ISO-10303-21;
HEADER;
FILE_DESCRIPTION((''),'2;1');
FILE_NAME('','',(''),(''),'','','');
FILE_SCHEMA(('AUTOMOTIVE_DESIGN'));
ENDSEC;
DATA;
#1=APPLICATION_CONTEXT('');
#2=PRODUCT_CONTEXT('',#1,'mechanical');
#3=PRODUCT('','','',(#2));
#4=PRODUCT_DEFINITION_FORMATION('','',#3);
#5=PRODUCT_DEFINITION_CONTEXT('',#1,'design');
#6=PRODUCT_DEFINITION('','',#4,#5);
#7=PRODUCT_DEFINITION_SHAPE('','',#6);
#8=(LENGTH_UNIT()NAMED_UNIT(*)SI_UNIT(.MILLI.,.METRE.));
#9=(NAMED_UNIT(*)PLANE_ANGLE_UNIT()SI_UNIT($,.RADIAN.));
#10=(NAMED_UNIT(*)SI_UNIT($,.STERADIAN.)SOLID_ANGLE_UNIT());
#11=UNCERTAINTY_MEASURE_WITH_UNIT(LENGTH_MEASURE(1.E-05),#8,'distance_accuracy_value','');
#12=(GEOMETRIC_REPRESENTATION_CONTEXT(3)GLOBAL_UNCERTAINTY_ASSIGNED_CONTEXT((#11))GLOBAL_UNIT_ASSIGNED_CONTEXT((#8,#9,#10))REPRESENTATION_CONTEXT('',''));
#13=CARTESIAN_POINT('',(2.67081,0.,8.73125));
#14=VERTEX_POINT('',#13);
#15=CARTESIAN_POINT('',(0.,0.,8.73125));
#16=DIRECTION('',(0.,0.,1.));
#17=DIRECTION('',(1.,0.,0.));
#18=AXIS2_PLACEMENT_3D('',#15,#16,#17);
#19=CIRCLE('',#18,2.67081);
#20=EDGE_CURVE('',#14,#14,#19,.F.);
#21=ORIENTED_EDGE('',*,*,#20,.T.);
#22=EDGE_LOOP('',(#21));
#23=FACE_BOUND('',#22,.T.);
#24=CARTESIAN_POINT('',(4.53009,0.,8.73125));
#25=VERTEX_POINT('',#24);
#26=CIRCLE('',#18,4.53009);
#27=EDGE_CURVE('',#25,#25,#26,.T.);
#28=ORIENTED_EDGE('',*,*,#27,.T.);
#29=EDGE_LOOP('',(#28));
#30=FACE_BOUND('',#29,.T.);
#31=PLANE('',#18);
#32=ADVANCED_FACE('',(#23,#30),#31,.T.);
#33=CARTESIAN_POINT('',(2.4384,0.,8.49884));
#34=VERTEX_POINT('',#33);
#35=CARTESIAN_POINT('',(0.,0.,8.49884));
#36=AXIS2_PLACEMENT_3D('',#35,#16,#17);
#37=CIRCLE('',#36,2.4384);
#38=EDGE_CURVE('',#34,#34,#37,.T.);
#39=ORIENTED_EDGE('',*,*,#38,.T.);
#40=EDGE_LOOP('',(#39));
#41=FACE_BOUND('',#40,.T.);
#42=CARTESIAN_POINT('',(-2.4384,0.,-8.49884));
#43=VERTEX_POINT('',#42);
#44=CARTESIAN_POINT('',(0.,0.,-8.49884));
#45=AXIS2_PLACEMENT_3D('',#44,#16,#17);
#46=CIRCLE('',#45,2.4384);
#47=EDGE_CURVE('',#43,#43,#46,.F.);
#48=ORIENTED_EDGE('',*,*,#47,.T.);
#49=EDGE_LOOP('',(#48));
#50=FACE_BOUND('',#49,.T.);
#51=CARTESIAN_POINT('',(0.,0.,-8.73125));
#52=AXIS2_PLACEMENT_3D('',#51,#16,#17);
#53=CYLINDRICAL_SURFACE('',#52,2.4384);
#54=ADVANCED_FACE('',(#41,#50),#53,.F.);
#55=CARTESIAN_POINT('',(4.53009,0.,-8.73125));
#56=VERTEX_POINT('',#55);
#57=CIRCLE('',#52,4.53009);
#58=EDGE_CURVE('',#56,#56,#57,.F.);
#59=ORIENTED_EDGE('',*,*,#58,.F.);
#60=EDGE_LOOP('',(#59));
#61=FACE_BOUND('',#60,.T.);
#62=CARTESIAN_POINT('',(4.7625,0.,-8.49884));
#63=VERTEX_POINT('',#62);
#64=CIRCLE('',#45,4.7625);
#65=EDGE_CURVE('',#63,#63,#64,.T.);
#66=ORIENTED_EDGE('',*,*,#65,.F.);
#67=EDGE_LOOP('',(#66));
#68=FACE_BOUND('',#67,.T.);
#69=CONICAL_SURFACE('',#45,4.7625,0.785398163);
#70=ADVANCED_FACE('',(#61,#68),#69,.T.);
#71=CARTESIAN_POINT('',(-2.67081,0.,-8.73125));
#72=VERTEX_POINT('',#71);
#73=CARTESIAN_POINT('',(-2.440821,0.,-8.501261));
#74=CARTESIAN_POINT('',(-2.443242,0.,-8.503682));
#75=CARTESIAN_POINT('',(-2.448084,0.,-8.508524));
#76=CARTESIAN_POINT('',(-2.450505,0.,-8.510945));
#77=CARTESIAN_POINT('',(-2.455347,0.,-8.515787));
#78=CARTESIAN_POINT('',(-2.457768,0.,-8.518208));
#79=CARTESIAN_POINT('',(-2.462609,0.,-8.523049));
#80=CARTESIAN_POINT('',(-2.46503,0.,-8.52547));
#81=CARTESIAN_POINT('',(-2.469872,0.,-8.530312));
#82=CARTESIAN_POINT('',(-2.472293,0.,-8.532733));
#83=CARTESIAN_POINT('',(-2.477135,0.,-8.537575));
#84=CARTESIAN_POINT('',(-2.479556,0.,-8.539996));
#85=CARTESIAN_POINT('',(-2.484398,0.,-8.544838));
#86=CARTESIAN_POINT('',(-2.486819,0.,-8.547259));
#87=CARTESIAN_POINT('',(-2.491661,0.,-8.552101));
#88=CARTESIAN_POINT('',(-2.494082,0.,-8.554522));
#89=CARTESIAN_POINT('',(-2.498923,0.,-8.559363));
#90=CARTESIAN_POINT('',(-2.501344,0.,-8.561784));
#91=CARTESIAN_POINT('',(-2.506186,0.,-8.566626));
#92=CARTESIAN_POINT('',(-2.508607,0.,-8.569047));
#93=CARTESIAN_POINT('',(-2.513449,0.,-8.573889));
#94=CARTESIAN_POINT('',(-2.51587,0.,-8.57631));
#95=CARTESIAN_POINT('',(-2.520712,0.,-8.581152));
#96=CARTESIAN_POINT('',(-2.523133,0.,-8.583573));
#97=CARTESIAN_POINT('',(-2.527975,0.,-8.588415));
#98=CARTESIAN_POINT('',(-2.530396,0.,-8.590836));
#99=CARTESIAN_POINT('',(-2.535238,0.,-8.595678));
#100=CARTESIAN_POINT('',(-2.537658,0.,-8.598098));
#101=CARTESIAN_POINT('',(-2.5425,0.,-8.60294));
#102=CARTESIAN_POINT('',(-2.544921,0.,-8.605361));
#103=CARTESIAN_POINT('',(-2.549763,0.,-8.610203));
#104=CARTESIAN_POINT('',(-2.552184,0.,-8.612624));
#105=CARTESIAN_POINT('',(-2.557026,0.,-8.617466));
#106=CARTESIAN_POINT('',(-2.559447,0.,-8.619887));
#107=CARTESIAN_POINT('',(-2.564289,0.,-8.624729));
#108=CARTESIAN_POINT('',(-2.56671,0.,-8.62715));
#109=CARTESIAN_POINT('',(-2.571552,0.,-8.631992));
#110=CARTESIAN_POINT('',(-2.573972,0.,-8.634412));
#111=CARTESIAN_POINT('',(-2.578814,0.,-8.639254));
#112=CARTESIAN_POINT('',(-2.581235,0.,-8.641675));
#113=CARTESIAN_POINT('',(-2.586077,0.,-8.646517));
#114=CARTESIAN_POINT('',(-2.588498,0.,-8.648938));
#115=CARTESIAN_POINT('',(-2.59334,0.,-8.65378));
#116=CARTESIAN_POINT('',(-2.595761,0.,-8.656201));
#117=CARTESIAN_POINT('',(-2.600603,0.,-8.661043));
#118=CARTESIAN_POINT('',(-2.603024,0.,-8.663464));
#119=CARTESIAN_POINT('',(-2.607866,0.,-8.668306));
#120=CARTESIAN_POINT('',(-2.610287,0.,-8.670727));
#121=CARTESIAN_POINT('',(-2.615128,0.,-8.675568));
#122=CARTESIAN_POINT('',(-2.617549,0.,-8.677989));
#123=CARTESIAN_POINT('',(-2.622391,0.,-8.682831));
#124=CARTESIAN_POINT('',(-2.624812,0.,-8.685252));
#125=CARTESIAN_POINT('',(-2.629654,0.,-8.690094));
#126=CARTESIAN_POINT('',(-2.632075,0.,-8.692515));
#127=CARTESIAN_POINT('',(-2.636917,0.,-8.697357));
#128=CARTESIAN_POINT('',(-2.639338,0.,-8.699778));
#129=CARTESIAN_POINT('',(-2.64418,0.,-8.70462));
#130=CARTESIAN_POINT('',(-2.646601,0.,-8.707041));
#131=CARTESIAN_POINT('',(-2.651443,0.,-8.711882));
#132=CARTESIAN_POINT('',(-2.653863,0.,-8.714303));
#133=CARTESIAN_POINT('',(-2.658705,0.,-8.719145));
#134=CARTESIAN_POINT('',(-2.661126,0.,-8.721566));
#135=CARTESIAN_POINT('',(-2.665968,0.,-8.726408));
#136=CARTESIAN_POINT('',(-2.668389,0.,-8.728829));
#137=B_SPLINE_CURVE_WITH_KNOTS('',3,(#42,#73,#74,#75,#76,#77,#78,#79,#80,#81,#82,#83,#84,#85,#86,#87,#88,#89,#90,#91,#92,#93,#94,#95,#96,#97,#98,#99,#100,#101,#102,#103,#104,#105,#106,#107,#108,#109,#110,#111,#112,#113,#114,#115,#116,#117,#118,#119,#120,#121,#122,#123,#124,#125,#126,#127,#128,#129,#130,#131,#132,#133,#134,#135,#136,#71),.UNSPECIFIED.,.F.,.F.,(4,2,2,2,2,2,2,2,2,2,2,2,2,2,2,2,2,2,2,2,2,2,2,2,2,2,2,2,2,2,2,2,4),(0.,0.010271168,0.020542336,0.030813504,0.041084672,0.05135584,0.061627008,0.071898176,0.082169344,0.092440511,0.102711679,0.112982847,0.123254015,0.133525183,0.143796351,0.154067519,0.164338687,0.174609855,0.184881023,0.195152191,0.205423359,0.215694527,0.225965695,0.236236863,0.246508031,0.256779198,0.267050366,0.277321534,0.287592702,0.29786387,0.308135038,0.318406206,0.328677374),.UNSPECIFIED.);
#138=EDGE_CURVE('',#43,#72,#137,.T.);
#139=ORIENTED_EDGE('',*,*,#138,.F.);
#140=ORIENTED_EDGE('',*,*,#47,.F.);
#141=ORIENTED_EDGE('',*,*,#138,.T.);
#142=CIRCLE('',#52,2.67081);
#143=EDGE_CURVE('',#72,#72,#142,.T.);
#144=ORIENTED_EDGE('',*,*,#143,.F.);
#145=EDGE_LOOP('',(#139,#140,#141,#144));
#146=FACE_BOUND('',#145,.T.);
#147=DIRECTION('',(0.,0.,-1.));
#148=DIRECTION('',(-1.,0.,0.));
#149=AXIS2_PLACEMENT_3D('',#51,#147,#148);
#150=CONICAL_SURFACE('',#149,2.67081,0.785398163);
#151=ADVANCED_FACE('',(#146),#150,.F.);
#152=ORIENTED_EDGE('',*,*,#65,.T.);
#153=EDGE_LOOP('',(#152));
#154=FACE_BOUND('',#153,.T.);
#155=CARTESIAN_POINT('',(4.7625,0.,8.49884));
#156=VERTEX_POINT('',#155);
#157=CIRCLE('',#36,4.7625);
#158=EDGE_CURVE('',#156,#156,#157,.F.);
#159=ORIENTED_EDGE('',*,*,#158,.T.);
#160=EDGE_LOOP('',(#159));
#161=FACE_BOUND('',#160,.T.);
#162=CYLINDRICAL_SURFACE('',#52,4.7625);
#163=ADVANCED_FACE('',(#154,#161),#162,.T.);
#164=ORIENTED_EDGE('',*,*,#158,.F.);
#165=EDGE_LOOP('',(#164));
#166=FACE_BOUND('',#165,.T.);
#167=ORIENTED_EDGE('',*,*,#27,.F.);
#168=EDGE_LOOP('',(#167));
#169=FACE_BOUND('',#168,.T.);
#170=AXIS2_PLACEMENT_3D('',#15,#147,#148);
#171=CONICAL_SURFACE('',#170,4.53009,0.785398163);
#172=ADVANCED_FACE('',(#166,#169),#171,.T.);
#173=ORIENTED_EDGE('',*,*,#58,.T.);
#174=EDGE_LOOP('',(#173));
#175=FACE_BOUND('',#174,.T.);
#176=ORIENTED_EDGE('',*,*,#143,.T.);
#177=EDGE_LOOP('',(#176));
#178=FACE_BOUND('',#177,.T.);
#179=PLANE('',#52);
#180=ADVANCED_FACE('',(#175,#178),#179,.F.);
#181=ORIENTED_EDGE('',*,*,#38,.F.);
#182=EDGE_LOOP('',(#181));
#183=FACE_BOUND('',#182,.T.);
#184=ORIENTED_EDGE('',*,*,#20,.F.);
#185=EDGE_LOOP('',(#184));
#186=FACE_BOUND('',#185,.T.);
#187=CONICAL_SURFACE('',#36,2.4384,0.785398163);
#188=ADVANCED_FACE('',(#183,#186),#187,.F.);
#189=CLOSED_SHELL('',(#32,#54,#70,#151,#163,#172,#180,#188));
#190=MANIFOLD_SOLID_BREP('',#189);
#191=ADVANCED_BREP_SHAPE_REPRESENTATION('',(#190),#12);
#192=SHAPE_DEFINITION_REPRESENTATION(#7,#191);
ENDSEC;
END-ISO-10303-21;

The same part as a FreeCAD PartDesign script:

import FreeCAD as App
import Part
import Sketcher
Q = App.Units.Quantity


def edges_at(feature, points):
    """Names of the edges that pass closest to the given points."""
    edges = feature.Shape.Edges
    near = lambda p: min(range(len(edges)), key=lambda i: edges[i].distToShape(Part.Vertex(*p))[0])
    return sorted({f"Edge{near(p) + 1}" for p in points})

doc = App.newDocument("Part")
body = doc.addObject("PartDesign::Body", "Body")

sketch1 = body.newObject("Sketcher::SketchObject", "Sketch")
sketch1.AttachmentSupport = (doc.getObject("XY_Plane"), [""])
sketch1.MapMode = "FlatFace"
sketch1.addGeometry([
    Part.Circle(App.Vector(0, 0, 0), App.Vector(0, 0, 1), 4.8),
    Part.Circle(App.Vector(0, 0, 0), App.Vector(0, 0, 1), 2.4),
], False)
sketch1.addConstraint([
    Sketcher.Constraint("Coincident", 0, 3, -1, 1),
    Sketcher.Constraint("Coincident", 1, 3, -1, 1),
    Sketcher.Constraint("Diameter", 0, Q("0.375 in")),
    Sketcher.Constraint("Diameter", 1, Q("0.192 in")),
])
pad1 = body.newObject("PartDesign::Pad", "Pad")
pad1.Profile = sketch1
pad1.Type = "TwoLengths"
pad1.Length = Q("0.34375 in")
pad1.Length2 = Q("0.34375 in")
doc.recompute()

chamfer = body.newObject("PartDesign::Chamfer", "Chamfer")
chamfer.Base = (pad1, edges_at(pad1, [
    (-4.763, 0, -8.731),
    (-2.438, 0, -8.731),
    (-4.763, 0, 8.731),
    (-2.438, 0, 8.731),
]))
chamfer.Size = 0.23241

doc.recompute()
